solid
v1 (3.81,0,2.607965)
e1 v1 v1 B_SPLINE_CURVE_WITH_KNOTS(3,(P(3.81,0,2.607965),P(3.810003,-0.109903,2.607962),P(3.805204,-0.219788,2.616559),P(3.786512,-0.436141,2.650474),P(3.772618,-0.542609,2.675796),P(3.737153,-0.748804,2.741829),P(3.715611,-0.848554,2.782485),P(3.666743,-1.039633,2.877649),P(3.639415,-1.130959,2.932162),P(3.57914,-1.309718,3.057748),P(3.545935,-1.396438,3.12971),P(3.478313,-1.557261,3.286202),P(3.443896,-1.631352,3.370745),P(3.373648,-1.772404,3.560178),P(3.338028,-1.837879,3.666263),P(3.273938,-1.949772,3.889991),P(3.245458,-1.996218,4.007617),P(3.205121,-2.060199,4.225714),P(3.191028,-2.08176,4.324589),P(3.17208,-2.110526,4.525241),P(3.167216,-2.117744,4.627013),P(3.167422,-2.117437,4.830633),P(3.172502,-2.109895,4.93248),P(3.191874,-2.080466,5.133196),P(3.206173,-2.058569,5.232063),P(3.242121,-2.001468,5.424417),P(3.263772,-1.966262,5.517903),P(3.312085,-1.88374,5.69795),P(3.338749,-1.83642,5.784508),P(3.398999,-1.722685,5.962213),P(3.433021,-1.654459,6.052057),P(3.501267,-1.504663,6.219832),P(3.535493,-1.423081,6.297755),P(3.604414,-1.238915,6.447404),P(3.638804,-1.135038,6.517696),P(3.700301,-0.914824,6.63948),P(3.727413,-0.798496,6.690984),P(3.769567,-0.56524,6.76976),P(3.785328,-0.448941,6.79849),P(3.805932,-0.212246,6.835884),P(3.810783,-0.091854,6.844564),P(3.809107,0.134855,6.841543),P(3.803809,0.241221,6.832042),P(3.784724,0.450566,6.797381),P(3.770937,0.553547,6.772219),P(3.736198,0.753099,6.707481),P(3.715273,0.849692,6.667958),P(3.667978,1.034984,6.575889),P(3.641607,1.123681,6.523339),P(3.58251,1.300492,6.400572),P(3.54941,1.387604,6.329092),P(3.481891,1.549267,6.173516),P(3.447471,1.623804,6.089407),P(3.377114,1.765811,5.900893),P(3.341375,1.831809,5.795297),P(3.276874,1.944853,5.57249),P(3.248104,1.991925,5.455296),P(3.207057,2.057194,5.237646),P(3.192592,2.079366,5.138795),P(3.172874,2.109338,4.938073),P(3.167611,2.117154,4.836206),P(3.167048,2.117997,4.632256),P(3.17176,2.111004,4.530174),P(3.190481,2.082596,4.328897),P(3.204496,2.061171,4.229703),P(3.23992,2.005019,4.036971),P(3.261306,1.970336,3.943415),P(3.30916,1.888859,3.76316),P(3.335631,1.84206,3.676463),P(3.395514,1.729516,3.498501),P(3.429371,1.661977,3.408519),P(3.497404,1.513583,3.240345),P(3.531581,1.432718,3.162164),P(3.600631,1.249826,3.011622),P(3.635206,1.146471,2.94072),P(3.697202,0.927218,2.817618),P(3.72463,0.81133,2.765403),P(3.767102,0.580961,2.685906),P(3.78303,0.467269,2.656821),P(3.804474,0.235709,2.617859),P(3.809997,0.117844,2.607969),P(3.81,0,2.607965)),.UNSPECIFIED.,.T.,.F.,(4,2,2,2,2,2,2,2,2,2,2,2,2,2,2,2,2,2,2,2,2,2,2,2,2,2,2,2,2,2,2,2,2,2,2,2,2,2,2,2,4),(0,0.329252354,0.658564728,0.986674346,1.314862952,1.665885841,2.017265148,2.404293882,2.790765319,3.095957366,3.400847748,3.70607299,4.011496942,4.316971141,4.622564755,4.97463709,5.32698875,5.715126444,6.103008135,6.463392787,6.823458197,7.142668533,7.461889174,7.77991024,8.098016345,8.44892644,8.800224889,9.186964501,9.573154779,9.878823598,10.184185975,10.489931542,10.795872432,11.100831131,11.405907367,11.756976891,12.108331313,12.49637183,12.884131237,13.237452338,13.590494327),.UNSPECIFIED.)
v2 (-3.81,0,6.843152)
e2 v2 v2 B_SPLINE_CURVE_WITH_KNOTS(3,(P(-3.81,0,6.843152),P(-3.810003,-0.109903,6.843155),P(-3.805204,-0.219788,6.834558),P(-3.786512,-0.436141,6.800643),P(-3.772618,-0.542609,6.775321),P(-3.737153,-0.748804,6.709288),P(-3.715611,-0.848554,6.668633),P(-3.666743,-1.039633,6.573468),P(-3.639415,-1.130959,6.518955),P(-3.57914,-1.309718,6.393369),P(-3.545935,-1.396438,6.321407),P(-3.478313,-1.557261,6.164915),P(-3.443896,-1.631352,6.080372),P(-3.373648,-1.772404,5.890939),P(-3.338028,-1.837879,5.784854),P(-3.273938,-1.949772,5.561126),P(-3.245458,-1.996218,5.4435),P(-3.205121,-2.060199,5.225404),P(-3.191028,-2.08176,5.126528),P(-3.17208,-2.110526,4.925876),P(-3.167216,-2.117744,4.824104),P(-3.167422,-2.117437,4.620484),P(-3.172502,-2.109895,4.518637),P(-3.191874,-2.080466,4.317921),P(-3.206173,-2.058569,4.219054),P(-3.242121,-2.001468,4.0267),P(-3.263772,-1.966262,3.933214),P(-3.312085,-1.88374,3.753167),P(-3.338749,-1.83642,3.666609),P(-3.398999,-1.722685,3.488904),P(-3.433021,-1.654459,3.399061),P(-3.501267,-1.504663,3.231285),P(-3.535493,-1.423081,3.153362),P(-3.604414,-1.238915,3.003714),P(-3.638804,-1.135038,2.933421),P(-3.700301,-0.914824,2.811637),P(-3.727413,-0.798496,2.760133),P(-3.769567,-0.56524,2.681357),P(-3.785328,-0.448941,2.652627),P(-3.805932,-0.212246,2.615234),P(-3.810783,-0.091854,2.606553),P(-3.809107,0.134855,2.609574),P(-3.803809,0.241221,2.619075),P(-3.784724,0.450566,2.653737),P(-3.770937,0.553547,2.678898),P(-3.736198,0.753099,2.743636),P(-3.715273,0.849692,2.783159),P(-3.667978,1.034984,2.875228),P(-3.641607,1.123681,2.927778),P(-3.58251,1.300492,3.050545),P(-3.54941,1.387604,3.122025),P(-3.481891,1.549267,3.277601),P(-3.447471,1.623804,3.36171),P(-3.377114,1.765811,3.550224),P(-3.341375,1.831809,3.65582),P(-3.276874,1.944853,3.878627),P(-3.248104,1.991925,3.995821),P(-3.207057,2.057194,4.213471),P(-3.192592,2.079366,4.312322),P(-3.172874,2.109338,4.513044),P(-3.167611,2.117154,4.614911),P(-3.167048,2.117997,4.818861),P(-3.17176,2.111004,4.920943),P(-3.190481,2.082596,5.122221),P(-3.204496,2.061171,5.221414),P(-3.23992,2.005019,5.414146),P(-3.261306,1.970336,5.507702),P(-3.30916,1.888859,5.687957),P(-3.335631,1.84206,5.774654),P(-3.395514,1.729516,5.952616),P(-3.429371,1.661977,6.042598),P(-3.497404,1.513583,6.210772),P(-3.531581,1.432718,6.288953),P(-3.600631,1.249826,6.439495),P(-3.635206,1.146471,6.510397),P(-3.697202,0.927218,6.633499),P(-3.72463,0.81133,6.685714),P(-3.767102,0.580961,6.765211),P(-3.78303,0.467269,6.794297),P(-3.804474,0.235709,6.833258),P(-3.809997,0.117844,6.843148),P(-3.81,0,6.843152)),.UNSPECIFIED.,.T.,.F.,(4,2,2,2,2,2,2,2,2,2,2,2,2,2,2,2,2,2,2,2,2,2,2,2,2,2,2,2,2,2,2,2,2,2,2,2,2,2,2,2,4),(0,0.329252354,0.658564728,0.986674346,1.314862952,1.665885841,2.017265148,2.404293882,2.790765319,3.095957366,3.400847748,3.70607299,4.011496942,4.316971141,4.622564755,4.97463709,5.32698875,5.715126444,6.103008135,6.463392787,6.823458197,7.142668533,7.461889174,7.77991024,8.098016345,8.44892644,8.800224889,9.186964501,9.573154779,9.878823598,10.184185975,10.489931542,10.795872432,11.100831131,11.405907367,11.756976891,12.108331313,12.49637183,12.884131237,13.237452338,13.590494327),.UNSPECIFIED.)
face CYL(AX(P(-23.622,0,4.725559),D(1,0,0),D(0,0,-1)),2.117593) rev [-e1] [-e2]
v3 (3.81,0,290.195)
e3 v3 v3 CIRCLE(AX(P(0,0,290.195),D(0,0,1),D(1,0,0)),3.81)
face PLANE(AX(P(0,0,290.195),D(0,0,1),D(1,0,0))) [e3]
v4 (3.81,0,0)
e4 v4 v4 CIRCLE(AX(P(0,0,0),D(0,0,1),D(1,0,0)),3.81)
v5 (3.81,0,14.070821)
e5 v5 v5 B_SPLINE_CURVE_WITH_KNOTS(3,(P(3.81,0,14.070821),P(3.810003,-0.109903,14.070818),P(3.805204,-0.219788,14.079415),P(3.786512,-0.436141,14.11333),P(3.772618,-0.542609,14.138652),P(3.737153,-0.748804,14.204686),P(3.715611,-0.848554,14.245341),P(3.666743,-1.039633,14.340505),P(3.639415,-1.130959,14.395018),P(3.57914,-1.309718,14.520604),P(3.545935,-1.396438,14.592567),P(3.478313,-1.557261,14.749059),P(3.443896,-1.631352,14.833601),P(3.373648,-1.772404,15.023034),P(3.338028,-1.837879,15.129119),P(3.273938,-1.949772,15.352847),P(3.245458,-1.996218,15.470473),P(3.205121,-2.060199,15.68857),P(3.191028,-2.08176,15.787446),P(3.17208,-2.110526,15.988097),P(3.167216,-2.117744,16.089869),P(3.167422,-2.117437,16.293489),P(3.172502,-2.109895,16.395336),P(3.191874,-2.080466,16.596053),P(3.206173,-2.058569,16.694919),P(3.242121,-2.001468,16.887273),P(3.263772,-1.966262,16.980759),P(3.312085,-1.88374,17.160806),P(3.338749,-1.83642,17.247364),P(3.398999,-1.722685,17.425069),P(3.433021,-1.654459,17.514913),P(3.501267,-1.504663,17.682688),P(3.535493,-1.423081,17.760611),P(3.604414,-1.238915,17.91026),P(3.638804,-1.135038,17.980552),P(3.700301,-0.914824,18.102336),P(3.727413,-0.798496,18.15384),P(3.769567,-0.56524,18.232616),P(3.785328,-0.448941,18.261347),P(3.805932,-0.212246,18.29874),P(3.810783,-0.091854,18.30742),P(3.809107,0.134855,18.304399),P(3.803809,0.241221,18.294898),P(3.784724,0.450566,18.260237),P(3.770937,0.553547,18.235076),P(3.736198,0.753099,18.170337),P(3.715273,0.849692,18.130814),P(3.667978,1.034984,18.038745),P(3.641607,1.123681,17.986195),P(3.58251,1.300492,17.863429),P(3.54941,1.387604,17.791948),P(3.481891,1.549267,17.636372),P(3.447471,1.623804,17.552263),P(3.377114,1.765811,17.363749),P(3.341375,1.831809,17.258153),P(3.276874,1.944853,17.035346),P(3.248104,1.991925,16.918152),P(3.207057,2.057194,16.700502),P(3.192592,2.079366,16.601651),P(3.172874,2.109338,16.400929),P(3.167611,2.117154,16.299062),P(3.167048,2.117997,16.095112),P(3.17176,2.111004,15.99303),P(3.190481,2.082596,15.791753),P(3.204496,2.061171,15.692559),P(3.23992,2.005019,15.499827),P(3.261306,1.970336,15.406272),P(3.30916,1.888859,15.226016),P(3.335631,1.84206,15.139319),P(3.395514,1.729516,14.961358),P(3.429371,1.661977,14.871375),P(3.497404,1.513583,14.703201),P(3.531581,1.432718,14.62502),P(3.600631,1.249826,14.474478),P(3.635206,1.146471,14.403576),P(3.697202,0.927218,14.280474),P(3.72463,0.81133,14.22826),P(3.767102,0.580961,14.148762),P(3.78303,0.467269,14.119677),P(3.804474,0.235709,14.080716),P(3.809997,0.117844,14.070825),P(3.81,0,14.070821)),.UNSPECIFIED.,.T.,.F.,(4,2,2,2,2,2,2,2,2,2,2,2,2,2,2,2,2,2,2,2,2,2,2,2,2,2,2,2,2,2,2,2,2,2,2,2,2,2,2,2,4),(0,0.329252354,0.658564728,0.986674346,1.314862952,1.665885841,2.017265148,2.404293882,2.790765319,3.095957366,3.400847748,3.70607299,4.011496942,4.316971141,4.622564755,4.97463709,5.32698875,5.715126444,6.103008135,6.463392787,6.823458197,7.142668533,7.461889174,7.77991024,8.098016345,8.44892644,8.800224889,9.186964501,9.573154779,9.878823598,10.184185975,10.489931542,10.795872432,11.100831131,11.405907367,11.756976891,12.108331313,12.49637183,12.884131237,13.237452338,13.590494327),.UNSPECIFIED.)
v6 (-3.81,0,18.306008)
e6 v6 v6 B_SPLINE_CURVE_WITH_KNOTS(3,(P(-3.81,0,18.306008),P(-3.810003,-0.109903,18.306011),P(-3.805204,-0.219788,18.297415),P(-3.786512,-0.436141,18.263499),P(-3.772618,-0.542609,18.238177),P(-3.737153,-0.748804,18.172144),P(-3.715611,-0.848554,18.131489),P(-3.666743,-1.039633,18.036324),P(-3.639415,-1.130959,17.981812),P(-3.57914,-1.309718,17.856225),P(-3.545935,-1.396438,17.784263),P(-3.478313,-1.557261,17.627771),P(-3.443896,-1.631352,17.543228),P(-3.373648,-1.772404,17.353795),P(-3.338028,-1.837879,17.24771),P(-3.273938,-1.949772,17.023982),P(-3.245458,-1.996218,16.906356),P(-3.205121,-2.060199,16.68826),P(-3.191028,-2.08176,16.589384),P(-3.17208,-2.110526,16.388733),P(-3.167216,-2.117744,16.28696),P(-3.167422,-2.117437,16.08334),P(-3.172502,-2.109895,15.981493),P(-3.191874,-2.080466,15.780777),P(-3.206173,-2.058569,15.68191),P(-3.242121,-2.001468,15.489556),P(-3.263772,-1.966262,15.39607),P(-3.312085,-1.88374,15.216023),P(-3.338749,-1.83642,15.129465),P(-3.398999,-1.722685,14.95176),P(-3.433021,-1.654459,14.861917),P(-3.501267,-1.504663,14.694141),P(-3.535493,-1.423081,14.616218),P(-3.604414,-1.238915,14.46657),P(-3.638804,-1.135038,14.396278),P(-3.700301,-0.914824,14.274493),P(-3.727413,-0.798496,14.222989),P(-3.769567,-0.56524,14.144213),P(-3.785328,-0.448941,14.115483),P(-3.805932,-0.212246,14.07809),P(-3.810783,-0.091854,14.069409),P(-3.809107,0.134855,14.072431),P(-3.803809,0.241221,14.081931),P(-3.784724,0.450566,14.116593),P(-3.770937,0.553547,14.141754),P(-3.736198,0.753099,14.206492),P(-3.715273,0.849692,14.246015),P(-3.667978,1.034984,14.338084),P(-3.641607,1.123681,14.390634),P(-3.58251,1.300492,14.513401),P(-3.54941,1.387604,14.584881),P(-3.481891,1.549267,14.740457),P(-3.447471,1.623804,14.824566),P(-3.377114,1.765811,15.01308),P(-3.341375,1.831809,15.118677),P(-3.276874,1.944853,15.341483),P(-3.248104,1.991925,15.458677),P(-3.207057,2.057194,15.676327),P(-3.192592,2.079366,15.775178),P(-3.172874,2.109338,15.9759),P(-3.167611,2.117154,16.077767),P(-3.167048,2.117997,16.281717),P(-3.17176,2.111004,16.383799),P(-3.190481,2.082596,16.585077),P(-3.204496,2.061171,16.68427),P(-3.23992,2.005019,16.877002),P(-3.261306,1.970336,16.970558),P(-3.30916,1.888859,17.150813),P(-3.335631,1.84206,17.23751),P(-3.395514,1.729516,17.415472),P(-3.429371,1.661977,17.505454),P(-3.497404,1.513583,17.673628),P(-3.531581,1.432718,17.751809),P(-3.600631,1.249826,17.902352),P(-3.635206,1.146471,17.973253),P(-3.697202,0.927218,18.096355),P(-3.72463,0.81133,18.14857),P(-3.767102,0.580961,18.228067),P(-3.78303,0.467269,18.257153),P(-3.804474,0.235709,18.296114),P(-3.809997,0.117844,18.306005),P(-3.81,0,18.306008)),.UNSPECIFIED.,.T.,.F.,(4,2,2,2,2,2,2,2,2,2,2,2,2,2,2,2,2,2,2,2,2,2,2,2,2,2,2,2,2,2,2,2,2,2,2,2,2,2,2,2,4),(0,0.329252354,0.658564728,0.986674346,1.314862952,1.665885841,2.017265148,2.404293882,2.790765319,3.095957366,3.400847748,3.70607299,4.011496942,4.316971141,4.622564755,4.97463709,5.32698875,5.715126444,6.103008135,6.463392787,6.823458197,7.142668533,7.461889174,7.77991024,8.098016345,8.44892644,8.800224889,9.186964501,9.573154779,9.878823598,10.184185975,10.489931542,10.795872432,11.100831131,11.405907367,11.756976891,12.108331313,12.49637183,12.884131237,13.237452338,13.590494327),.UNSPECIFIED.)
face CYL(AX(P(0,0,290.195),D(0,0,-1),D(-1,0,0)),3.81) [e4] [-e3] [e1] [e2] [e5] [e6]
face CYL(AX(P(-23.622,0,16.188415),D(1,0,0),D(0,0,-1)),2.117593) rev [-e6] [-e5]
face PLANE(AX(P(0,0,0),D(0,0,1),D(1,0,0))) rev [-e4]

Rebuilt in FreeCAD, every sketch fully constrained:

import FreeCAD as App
import Part
import Sketcher
Q = App.Units.Quantity

doc = App.newDocument("Part")
body = doc.addObject("PartDesign::Body", "Body")

# Sketch on XY plane
sketch1 = doc.addObject("Sketcher::SketchObject", "Sketch")
body.addObject(sketch1)
sketch1.AttachmentSupport = (doc.XY_Plane, [""])
sketch1.MapMode = "FlatFace"
sketch1.addGeometry(Part.Circle(App.Vector(0, 0, 0), App.Vector(0, 0, 1), 3.8), False)
sketch1.addConstraint(Sketcher.Constraint("Coincident", 0, 3, -1, 1))
sketch1.addConstraint(Sketcher.Constraint("Diameter", 0, Q("0.3 in")))
pad1 = doc.addObject("PartDesign::Pad", "Pad")
body.addObject(pad1)
pad1.Profile = sketch1
pad1.Length = Q("11.425 in")

# Sketch on YZ plane
sketch2 = doc.addObject("Sketcher::SketchObject", "Sketch001")
body.addObject(sketch2)
sketch2.AttachmentSupport = (doc.YZ_Plane, [""])
sketch2.MapMode = "FlatFace"
sketch2.AttachmentOffset = App.Placement(App.Vector(0, 0, 0.2 * 25.4), App.Rotation())
sketch2.addGeometry(Part.Circle(App.Vector(0, 4.7, 0), App.Vector(0, 0, 1), 2.1), False)
sketch2.addGeometry(Part.Circle(App.Vector(0, 16.2, 0), App.Vector(0, 0, 1), 2.1), False)
sketch2.addConstraint(Sketcher.Constraint("Equal", 0, 1))
sketch2.addConstraint(Sketcher.Constraint("PointOnObject", 0, 3, -2))
sketch2.addConstraint(Sketcher.Constraint("PointOnObject", 1, 3, -2))
sketch2.addConstraint(Sketcher.Constraint("Diameter", 0, 4.235187))
sketch2.addConstraint(Sketcher.Constraint("DistanceY", -1, 1, 0, 3, 4.725559))
sketch2.addConstraint(Sketcher.Constraint("DistanceY", -1, 1, 1, 3, 16.188415))
pocket1 = doc.addObject("PartDesign::Pocket", "Pocket")
body.addObject(pocket1)
pocket1.Profile = sketch2
pocket1.Length = Q("1.13 in")

doc.recompute()
